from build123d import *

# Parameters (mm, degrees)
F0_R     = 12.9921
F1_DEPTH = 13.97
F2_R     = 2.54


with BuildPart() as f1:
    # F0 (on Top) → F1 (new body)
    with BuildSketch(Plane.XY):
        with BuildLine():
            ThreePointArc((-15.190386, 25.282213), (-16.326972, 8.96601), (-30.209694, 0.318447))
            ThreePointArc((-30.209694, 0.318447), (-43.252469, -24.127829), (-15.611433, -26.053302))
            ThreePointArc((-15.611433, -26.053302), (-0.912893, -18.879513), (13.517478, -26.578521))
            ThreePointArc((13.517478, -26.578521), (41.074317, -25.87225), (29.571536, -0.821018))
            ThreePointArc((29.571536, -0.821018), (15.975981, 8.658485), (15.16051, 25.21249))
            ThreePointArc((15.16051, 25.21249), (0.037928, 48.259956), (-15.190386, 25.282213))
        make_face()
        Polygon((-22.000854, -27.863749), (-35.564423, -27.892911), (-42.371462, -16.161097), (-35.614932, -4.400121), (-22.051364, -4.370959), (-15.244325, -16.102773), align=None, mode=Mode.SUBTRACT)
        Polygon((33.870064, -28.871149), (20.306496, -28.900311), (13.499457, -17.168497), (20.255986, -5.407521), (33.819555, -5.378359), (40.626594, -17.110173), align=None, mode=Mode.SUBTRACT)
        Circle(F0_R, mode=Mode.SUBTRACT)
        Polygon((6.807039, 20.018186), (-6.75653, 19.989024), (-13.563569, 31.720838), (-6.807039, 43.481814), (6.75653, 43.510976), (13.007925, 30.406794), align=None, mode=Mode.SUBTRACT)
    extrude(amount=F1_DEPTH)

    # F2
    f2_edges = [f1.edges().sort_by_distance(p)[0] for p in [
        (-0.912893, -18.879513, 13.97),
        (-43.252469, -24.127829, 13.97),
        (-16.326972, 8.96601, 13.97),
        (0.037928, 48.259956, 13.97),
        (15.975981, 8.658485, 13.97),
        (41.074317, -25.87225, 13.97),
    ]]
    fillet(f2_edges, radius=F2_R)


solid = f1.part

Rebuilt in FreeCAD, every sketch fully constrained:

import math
import FreeCAD as App
import Part
import Sketcher

V = App.Vector
Q = App.Units.Quantity


def edges_at(feature, points):
    """Names of the edges that pass closest to the given points."""
    edges = feature.Shape.Edges
    near = lambda p: min(range(len(edges)), key=lambda i: edges[i].distToShape(Part.Vertex(*p))[0])
    return sorted({f"Edge{near(p) + 1}" for p in points})

doc = App.newDocument("Part")
body = doc.addObject("PartDesign::Body", "Body")

# Sketch on XY plane
sketch1 = doc.addObject("Sketcher::SketchObject", "Sketch")
body.addObject(sketch1)
sketch1.AttachmentSupport = (doc.XY_Plane, [""])
sketch1.MapMode = "FlatFace"
sketch1.addGeometry(Part.ArcOfCircle(Part.Circle(V(-32, 18, 0), V(0, 0, 1), 18), math.radians(-85), math.radians(23)), False)
sketch1.addGeometry(Part.ArcOfCircle(Part.Circle(V(-29, -16, 0), V(0, 0, 1), 17), math.radians(95), math.radians(323)), False)
sketch1.addGeometry(Part.ArcOfCircle(Part.Circle(V(-1, -37, 0), V(0, 0, 1), 18), math.radians(35), math.radians(143)), False)
sketch1.addGeometry(Part.ArcOfCircle(Part.Circle(V(27, -17, 0), V(0, 0, 1), 17), math.radians(-145), math.radians(81)), False)
sketch1.addGeometry(Part.ArcOfCircle(Part.Circle(V(32, 18, 0), V(0, 0, 1), 19), math.radians(157), math.radians(261)), False)
sketch1.addGeometry(Part.ArcOfCircle(Part.Circle(V(0, 32, 0), V(0, 0, 1), 17), math.radians(-23), math.radians(203)), False)
sketch1.addGeometry(Part.LineSegment(V(-15, -16, 0), V(-22, -28, 0)), False)
sketch1.addGeometry(Part.LineSegment(V(-22, -28, 0), V(-36, -28, 0)), False)
sketch1.addGeometry(Part.LineSegment(V(-36, -28, 0), V(-42, -16, 0)), False)
sketch1.addGeometry(Part.LineSegment(V(-42, -16, 0), V(-36, -4, 0)), False)
sketch1.addGeometry(Part.LineSegment(V(-36, -4, 0), V(-22, -4, 0)), False)
sketch1.addGeometry(Part.LineSegment(V(-22, -4, 0), V(-15, -16, 0)), False)
sketch1.addGeometry(Part.LineSegment(V(41, -17, 0), V(34, -29, 0)), False)
sketch1.addGeometry(Part.LineSegment(V(34, -29, 0), V(20, -29, 0)), False)
sketch1.addGeometry(Part.LineSegment(V(20, -29, 0), V(13, -17, 0)), False)
sketch1.addGeometry(Part.LineSegment(V(13, -17, 0), V(20, -5, 0)), False)
sketch1.addGeometry(Part.LineSegment(V(20, -5, 0), V(34, -5, 0)), False)
sketch1.addGeometry(Part.LineSegment(V(34, -5, 0), V(41, -17, 0)), False)
sketch1.addGeometry(Part.Circle(V(0, 0, 0), V(0, 0, 1), 13), False)
sketch1.addGeometry(Part.LineSegment(V(13, 30, 0), V(7, 20, 0)), False)
sketch1.addGeometry(Part.LineSegment(V(7, 20, 0), V(-7, 20, 0)), False)
sketch1.addGeometry(Part.LineSegment(V(-7, 20, 0), V(-14, 32, 0)), False)
sketch1.addGeometry(Part.LineSegment(V(-14, 32, 0), V(-7, 43, 0)), False)
sketch1.addGeometry(Part.LineSegment(V(-7, 43, 0), V(7, 44, 0)), False)
sketch1.addGeometry(Part.LineSegment(V(7, 44, 0), V(13, 30, 0)), False)
sketch1.addConstraint(Sketcher.Constraint("Tangent", 0, 1, 1, 1))
sketch1.addConstraint(Sketcher.Constraint("Tangent", 1, 2, 2, 2))
sketch1.addConstraint(Sketcher.Constraint("Tangent", 2, 1, 3, 1))
sketch1.addConstraint(Sketcher.Constraint("Tangent", 3, 2, 4, 2))
sketch1.addConstraint(Sketcher.Constraint("Tangent", 4, 1, 5, 1))
sketch1.addConstraint(Sketcher.Constraint("Tangent", 5, 2, 0, 2))
sketch1.addConstraint(Sketcher.Constraint("Coincident", 6, 2, 7, 1))
sketch1.addConstraint(Sketcher.Constraint("Coincident", 7, 2, 8, 1))
sketch1.addConstraint(Sketcher.Constraint("Coincident", 8, 2, 9, 1))
sketch1.addConstraint(Sketcher.Constraint("Coincident", 9, 2, 10, 1))
sketch1.addConstraint(Sketcher.Constraint("Coincident", 10, 2, 11, 1))
sketch1.addConstraint(Sketcher.Constraint("Coincident", 11, 2, 6, 1))
sketch1.addConstraint(Sketcher.Constraint("Coincident", 12, 2, 13, 1))
sketch1.addConstraint(Sketcher.Constraint("Coincident", 13, 2, 14, 1))
sketch1.addConstraint(Sketcher.Constraint("Coincident", 14, 2, 15, 1))
sketch1.addConstraint(Sketcher.Constraint("Coincident", 15, 2, 16, 1))
sketch1.addConstraint(Sketcher.Constraint("Coincident", 16, 2, 17, 1))
sketch1.addConstraint(Sketcher.Constraint("Coincident", 17, 2, 12, 1))
sketch1.addConstraint(Sketcher.Constraint("Coincident", 19, 2, 20, 1))
sketch1.addConstraint(Sketcher.Constraint("Coincident", 20, 2, 21, 1))
sketch1.addConstraint(Sketcher.Constraint("Coincident", 21, 2, 22, 1))
sketch1.addConstraint(Sketcher.Constraint("Coincident", 22, 2, 23, 1))
sketch1.addConstraint(Sketcher.Constraint("Coincident", 23, 2, 24, 1))
sketch1.addConstraint(Sketcher.Constraint("Coincident", 24, 2, 19, 1))
sketch1.addConstraint(Sketcher.Constraint("Coincident", 18, 3, -1, 1))
sketch1.addConstraint(Sketcher.Constraint("Equal", 0, 2))
sketch1.addConstraint(Sketcher.Constraint("Equal", 1, 3))
sketch1.addConstraint(Sketcher.Constraint("Equal", 3, 5))
sketch1.addConstraint(Sketcher.Constraint("PointOnObject", 5, 3, -2))
sketch1.addConstraint(Sketcher.Constraint("Parallel", 6, 9))
sketch1.addConstraint(Sketcher.Constraint("Parallel", 7, 10))
sketch1.addConstraint(Sketcher.Constraint("Parallel", 8, 11))
sketch1.addConstraint(Sketcher.Constraint("Parallel", 9, 12))
sketch1.addConstraint(Sketcher.Constraint("Parallel", 10, 13))
sketch1.addConstraint(Sketcher.Constraint("Parallel", 11, 14))
sketch1.addConstraint(Sketcher.Constraint("Parallel", 12, 15))
sketch1.addConstraint(Sketcher.Constraint("Parallel", 13, 16))
sketch1.addConstraint(Sketcher.Constraint("Parallel", 14, 17))
sketch1.addConstraint(Sketcher.Constraint("Parallel", 16, 20))
sketch1.addConstraint(Sketcher.Constraint("Parallel", 17, 21))
sketch1.addConstraint(Sketcher.Constraint("Parallel", 15, 22))
sketch1.addConstraint(Sketcher.Constraint("Parallel", 20, 23))
sketch1.addConstraint(Sketcher.Constraint("Equal", 6, 7))
sketch1.addConstraint(Sketcher.Constraint("Equal", 7, 8))
sketch1.addConstraint(Sketcher.Constraint("Equal", 8, 9))
sketch1.addConstraint(Sketcher.Constraint("Equal", 11, 12))
sketch1.addConstraint(Sketcher.Constraint("Equal", 12, 13))
sketch1.addConstraint(Sketcher.Constraint("Equal", 13, 14))
sketch1.addConstraint(Sketcher.Constraint("Equal", 14, 15))
sketch1.addConstraint(Sketcher.Constraint("Equal", 17, 20))
sketch1.addConstraint(Sketcher.Constraint("Equal", 20, 21))
sketch1.addConstraint(Sketcher.Constraint("Equal", 21, 22))
sketch1.addConstraint(Sketcher.Constraint("Equal", 22, 23))
sketch1.addConstraint(Sketcher.Constraint("Radius", 1, Q("0.65 in")))
sketch1.addConstraint(Sketcher.Constraint("Diameter", 18, Q("1.023 in")))
sketch1.addConstraint(Sketcher.Constraint("DistanceY", -1, 1, 5, 3, Q("1.25 in")))
sketch1.addConstraint(Sketcher.Constraint("Distance", 6, Q("0.534 in")))
sketch1.addConstraint(Sketcher.Constraint("Radius", 2, 17.983628))
sketch1.addConstraint(Sketcher.Constraint("Radius", 4, 18.805411))
sketch1.addConstraint(Sketcher.Constraint("DistanceY", 19, 2, 4, 1, Q("0.2045002 in")))
sketch1.addConstraint(Sketcher.Constraint("DistanceY", 4, 1, 24, 2, Q("0.2045002 in")))
sketch1.addConstraint(Sketcher.Constraint("DistanceX", 2, 3, -1, 1, 1.2371))
sketch1.addConstraint(Sketcher.Constraint("DistanceY", 1, 2, -1, 1, 26.053302))
sketch1.addConstraint(Sketcher.Constraint("DistanceY", 3, 3, 1, 3, 1.0074))
sketch1.addConstraint(Sketcher.Constraint("DistanceX", 0, 1, 1, 3, 1.401801))
sketch1.addConstraint(Sketcher.Constraint("DistanceY", 2, 1, 15, 2, 21.171))
sketch1.addConstraint(Sketcher.Constraint("DistanceY", 5, 2, 22, 2, 18.199601))
sketch1.addConstraint(Sketcher.Constraint("DistanceX", 21, 2, 23, 2, 20.320099))
sketch1.addConstraint(Sketcher.Constraint("Distance", 19, 12.098519))
sketch1.addConstraint(Sketcher.Constraint("DistanceY", 6, 2, -1, 1, 27.863749))
sketch1.addConstraint(Sketcher.Constraint("DistanceY", 7, 2, -1, 1, 27.892911))
sketch1.addConstraint(Sketcher.Constraint("DistanceX", -1, 1, 19, 2, 6.807039))
sketch1.addConstraint(Sketcher.Constraint("DistanceX", 6, 2, 1, 2, 6.389421))
sketch1.addConstraint(Sketcher.Constraint("DistanceX", 3, 3, 12, 2, 6.807038))
pad1 = doc.addObject("PartDesign::Pad", "Pad")
body.addObject(pad1)
pad1.Profile = sketch1
pad1.Length = Q("0.55 in")
doc.recompute()

fillet = doc.addObject("PartDesign::Fillet", "Fillet")
body.addObject(fillet)
fillet.Base = (pad1, edges_at(pad1, [
    (-0.913, -18.88, 13.97),
    (-43.252, -24.128, 13.97),
    (-16.327, 8.966, 13.97),
    (0.038, 48.26, 13.97),
    (15.976, 8.658, 13.97),
    (41.074, -25.872, 13.97),
]))
fillet.Radius = Q("0.1 in")

doc.recompute()
